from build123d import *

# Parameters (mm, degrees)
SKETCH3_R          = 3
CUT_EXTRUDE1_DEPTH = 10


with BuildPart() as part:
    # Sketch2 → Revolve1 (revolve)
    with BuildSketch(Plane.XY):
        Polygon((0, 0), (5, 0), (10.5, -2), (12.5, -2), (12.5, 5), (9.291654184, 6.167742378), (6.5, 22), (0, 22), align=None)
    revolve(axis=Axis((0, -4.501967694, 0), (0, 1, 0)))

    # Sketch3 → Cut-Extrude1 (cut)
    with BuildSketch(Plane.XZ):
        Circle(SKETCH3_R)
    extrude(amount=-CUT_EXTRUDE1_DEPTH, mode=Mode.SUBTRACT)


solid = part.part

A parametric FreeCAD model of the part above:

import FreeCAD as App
import Part
import Sketcher
Q = App.Units.Quantity


def add_polygon(sketch, points):
    """Adds a closed chain of lines whose ends are joined by coincident constraints."""
    first, n = sketch.GeometryCount, len(points)
    for a, b in zip(points, points[1:] + points[:1]):
        sketch.addGeometry(Part.LineSegment(App.Vector(*a, 0), App.Vector(*b, 0)), False)
    for i in range(n):
        sketch.addConstraint(Sketcher.Constraint("Coincident", first + i, 2, first + (i + 1) % n, 1))

doc = App.newDocument("Part")
body = doc.addObject("PartDesign::Body", "Body")

# Sketch on XY plane
sketch1 = doc.addObject("Sketcher::SketchObject", "Sketch")
body.addObject(sketch1)
sketch1.AttachmentSupport = (doc.XY_Plane, [""])
sketch1.MapMode = "FlatFace"
add_polygon(sketch1, [(0, 0), (5, 0), (10.5, -2), (12.5, -2), (12.5, 5), (9.3, 6.2), (6.5, 22), (0, 22)])  # lines 0-7
sketch1.addConstraint([
    Sketcher.Constraint("Horizontal", 0),
    Sketcher.Constraint("Horizontal", 2),
    Sketcher.Constraint("Vertical", 3),
    Sketcher.Constraint("Horizontal", 6),
    Sketcher.Constraint("Vertical", 7),
    Sketcher.Constraint("Coincident", 7, 2, -1, 1),
    Sketcher.Constraint("DistanceX", 0, 1, 0, 2, Q("5 mm")),
    Sketcher.Constraint("DistanceX", 2, 1, 2, 2, Q("2 mm")),
    Sketcher.Constraint("DistanceY", 3, 1, 3, 2, Q("7 mm")),
    Sketcher.Constraint("DistanceY", 7, 2, 7, 1, Q("22 mm")),
    Sketcher.Constraint("Angle", 4, Q("160 deg")),
    Sketcher.Constraint("Angle", 5, Q("100 deg")),
    Sketcher.Constraint("DistanceX", 6, 2, 6, 1, Q("6.5 mm")),
    Sketcher.Constraint("DistanceY", 1, 2, -1, 1, Q("2 mm")),
    Sketcher.Constraint("DistanceX", 5, 2, 3, 2, Q("6 mm")),
])
revolution = doc.addObject("PartDesign::Revolution", "Revolution")
body.addObject(revolution)
revolution.Profile = sketch1
revolution.ReferenceAxis = (sketch1, ["V_Axis"])
revolution.Angle = 360

# Sketch on XZ plane
sketch2 = doc.addObject("Sketcher::SketchObject", "Sketch001")
body.addObject(sketch2)
sketch2.AttachmentSupport = (doc.XZ_Plane, [""])
sketch2.MapMode = "FlatFace"
sketch2.addGeometry(Part.Circle(App.Vector(0, 0, 0), App.Vector(0, 0, 1), 3), False)
sketch2.addConstraint([
    Sketcher.Constraint("Coincident", 0, 3, -1, 1),
    Sketcher.Constraint("Diameter", 0, Q("6 mm")),
])
pocket1 = doc.addObject("PartDesign::Pocket", "Pocket")
body.addObject(pocket1)
pocket1.Profile = sketch2
pocket1.Length = 10

doc.recompute()
